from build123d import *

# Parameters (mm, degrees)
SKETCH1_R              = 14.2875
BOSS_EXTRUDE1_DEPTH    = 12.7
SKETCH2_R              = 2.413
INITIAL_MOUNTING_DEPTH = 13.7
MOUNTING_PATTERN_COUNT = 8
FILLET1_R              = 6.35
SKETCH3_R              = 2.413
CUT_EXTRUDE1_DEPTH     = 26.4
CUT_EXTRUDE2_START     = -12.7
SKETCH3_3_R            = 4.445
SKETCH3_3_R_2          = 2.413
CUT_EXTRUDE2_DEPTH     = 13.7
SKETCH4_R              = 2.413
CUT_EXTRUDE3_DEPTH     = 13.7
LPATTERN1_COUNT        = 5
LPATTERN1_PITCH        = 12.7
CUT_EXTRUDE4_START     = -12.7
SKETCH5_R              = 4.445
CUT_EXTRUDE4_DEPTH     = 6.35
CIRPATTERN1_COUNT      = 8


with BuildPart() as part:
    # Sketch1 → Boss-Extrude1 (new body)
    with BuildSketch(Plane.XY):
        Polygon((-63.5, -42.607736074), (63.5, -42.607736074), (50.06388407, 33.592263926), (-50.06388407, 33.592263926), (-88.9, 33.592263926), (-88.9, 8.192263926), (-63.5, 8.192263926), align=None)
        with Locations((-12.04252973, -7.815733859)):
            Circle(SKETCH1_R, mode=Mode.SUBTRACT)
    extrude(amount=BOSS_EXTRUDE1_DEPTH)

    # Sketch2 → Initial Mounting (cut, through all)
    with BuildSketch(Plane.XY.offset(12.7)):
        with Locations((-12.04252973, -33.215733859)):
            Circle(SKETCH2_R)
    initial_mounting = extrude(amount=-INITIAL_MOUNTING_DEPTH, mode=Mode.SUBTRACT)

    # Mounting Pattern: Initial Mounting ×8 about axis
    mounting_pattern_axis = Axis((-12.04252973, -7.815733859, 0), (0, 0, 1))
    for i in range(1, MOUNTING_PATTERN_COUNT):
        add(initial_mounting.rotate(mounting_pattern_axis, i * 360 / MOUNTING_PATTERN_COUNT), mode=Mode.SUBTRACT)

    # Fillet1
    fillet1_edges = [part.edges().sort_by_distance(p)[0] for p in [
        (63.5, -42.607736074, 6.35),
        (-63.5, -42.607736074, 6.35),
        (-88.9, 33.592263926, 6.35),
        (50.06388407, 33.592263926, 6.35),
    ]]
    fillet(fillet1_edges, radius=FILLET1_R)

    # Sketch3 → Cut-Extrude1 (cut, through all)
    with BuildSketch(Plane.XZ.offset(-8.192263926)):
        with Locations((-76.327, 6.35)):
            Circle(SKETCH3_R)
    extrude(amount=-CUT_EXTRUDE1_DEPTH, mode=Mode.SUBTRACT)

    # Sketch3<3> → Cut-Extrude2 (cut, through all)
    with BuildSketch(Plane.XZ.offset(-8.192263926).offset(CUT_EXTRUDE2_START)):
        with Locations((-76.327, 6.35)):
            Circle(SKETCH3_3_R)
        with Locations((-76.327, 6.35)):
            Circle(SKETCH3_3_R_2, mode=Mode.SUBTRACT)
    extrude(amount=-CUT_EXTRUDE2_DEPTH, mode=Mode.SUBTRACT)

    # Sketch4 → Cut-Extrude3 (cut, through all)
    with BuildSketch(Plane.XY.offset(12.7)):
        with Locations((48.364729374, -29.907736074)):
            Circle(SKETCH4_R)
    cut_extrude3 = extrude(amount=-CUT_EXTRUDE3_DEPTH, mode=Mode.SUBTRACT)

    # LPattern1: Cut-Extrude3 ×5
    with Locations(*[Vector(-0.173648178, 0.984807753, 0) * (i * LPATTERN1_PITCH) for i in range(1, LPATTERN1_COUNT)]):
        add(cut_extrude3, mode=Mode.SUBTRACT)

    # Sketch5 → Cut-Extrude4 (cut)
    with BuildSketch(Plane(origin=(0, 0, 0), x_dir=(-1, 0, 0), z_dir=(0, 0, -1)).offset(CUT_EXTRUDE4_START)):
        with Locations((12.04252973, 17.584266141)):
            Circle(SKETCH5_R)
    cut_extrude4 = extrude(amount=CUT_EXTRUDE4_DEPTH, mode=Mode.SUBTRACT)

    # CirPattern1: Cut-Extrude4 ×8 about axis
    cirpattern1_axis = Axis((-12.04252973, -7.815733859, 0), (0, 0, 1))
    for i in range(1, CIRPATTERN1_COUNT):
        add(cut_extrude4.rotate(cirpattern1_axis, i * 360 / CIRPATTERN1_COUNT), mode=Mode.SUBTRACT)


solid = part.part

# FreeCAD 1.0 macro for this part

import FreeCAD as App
import Part
import Sketcher
Q = App.Units.Quantity


def edges_at(feature, points):
    """Names of the edges that pass closest to the given points."""
    edges = feature.Shape.Edges
    near = lambda p: min(range(len(edges)), key=lambda i: edges[i].distToShape(Part.Vertex(*p))[0])
    return sorted({f"Edge{near(p) + 1}" for p in points})


def add_polygon(sketch, points):
    """Adds a closed chain of lines whose ends are joined by coincident constraints."""
    first, n = sketch.GeometryCount, len(points)
    for a, b in zip(points, points[1:] + points[:1]):
        sketch.addGeometry(Part.LineSegment(App.Vector(*a, 0), App.Vector(*b, 0)), False)
    for i in range(n):
        sketch.addConstraint(Sketcher.Constraint("Coincident", first + i, 2, first + (i + 1) % n, 1))

doc = App.newDocument("Part")
params = doc.addObject("Spreadsheet::Sheet", "Params")
for row, (alias, value) in enumerate([
    ("sketch1_width", "5 in"),
    ("sketch1_width2", "1 in"),
    ("sketch1_height", "2 in"),
    ("sketch1_diameter", "1.125 in"),
    ("pad1_length", "0.5 in"),
    ("sketch2_diameter", "0.19 in"),
    ("fillet_radius", "0.25 in"),
    ("sketch3_diameter", "0.19 in"),
    ("sketch4_diameter", "0.35 in"),
    ("sketch4_diameter2", "0.19 in"),
    ("sketch5_diameter", "0.19 in"),
    ("linearpattern_pitch", "0.5 in"),
    ("sketch6_diameter", "0.35 in"),
    ("pocket5_length", "0.25 in"),
], start=1):
    params.set(f"A{row}", alias)
    params.set(f"B{row}", "=" + value)
    params.setAlias(f"B{row}", alias)

body = doc.addObject("PartDesign::Body", "Body")

# Sketch on XY plane
sketch1 = doc.addObject("Sketcher::SketchObject", "Sketch")
body.addObject(sketch1)
sketch1.AttachmentSupport = (doc.XY_Plane, [""])
sketch1.MapMode = "FlatFace"
add_polygon(sketch1, [(-63.5, -42.607736), (63.5, -42.607736), (50.063884, 33.592264), (-88.9, 33.592264), (-88.9, 8.192264), (-63.5, 8.192264)])  # lines 0-5
sketch1.addGeometry(Part.Circle(App.Vector(-12.04253, -7.815734, 0), App.Vector(0, 0, 1), 14.2875), False)  # 6
sketch1.addConstraint(Sketcher.Constraint("Horizontal", 0))
sketch1.addConstraint(Sketcher.Constraint("Horizontal", 2))
sketch1.addConstraint(Sketcher.Constraint("Vertical", 3))
sketch1.addConstraint(Sketcher.Constraint("Horizontal", 4))
sketch1.addConstraint(Sketcher.Constraint("Vertical", 5))
sketch1.addConstraint(Sketcher.Constraint("Equal", 4, 3))
sketch1.addConstraint(Sketcher.Constraint("DistanceX", 0, 1, 0, 2, Q("5 in")))
sketch1.addConstraint(Sketcher.Constraint("DistanceX", 4, 1, 4, 2, Q("1 in")))
sketch1.addConstraint(Sketcher.Constraint("DistanceY", 5, 2, 5, 1, Q("2 in")))
sketch1.addConstraint(Sketcher.Constraint("Diameter", 6, Q("1.125 in")))
sketch1.addConstraint(Sketcher.Constraint("Angle", 1, Q("100 deg")))
sketch1.addConstraint(Sketcher.Constraint("DistanceX", -1, 1, 0, 2, Q("2.5 in")))
sketch1.addConstraint(Sketcher.Constraint("DistanceX", 6, 3, -1, 1, 12.04253))
sketch1.addConstraint(Sketcher.Constraint("DistanceY", 6, 3, -1, 1, 7.815734))
sketch1.addConstraint(Sketcher.Constraint("DistanceY", 0, 2, -1, 1, 42.607736))
sketch1.setExpression("Constraints[12]", "Params.sketch1_width")
sketch1.setExpression("Constraints[13]", "Params.sketch1_width2")
sketch1.setExpression("Constraints[14]", "Params.sketch1_height")
sketch1.setExpression("Constraints[15]", "Params.sketch1_diameter")
pad1 = doc.addObject("PartDesign::Pad", "Pad")
body.addObject(pad1)
pad1.Profile = sketch1
pad1.setExpression("Length", "Params.pad1_length")

# Sketch on XY plane
sketch2 = doc.addObject("Sketcher::SketchObject", "Sketch001")
body.addObject(sketch2)
sketch2.AttachmentSupport = (doc.XY_Plane, [""])
sketch2.MapMode = "FlatFace"
sketch2.AttachmentOffset = App.Placement(App.Vector(0, 0, 0.5 * 25.4), App.Rotation())
sketch2.addGeometry(Part.Circle(App.Vector(-12.04253, -33.215734, 0), App.Vector(0, 0, 1), 2.413), False)
sketch2.addConstraint(Sketcher.Constraint("Diameter", 0, Q("0.19 in")))
sketch2.addConstraint(Sketcher.Constraint("DistanceX", 0, 3, -1, 1, 12.04253))
sketch2.addConstraint(Sketcher.Constraint("DistanceY", 0, 3, -1, 1, 33.215734))
sketch2.setExpression("Constraints[0]", "Params.sketch2_diameter")
pocket1 = doc.addObject("PartDesign::Pocket", "Pocket")
body.addObject(pocket1)
pocket1.Profile = sketch2
pocket1.Type = "ThroughAll"
doc.recompute()

datumline = doc.addObject("PartDesign::Line", "DatumLine")
body.addObject(datumline)
datumline.Placement = App.Placement(App.Vector(-12.04253, -7.815734, 0), App.Rotation(App.Vector(0, 0, 1), App.Vector(0, 0, 1)))
polarpattern = doc.addObject("PartDesign::PolarPattern", "PolarPattern")
body.addObject(polarpattern)
polarpattern.Originals = [pocket1]
polarpattern.Axis = (datumline, [""])
polarpattern.Angle = 360
polarpattern.Occurrences = 8
body.Tip = polarpattern
doc.recompute()

fillet = doc.addObject("PartDesign::Fillet", "Fillet")
body.addObject(fillet)
fillet.Base = (polarpattern, edges_at(polarpattern, [
    (63.5, -42.608, 6.35),
    (-63.5, -42.608, 6.35),
    (-88.9, 33.592, 6.35),
    (50.064, 33.592, 6.35),
]))
fillet.setExpression("Radius", "Params.fillet_radius")

# Sketch on XZ plane
sketch3 = doc.addObject("Sketcher::SketchObject", "Sketch002")
body.addObject(sketch3)
sketch3.AttachmentSupport = (doc.XZ_Plane, [""])
sketch3.MapMode = "FlatFace"
sketch3.AttachmentOffset = App.Placement(App.Vector(0, 0, -8.192264), App.Rotation())
sketch3.addGeometry(Part.Circle(App.Vector(-76.327, 6.35, 0), App.Vector(0, 0, 1), 2.413), False)
sketch3.addConstraint(Sketcher.Constraint("Diameter", 0, Q("0.19 in")))
sketch3.addConstraint(Sketcher.Constraint("DistanceY", -1, 1, 0, 3, Q("0.25 in")))
sketch3.addConstraint(Sketcher.Constraint("DistanceX", 0, 3, -1, 1, Q("3.005 in")))
sketch3.setExpression("Constraints[0]", "Params.sketch3_diameter")
pocket2 = doc.addObject("PartDesign::Pocket", "Pocket001")
body.addObject(pocket2)
pocket2.Profile = sketch3
pocket2.Type = "ThroughAll"

# Sketch on XZ plane
sketch4 = doc.addObject("Sketcher::SketchObject", "Sketch003")
body.addObject(sketch4)
sketch4.AttachmentSupport = (doc.XZ_Plane, [""])
sketch4.MapMode = "FlatFace"
sketch4.AttachmentOffset = App.Placement(App.Vector(0, 0, -20.892264), App.Rotation())
sketch4.addGeometry(Part.Circle(App.Vector(-76.327, 6.35, 0), App.Vector(0, 0, 1), 4.445), False)
sketch4.addGeometry(Part.Circle(App.Vector(-76.327, 6.35, 0), App.Vector(0, 0, 1), 2.413), False)
sketch4.addConstraint(Sketcher.Constraint("Coincident", 1, 3, 0, 3))
sketch4.addConstraint(Sketcher.Constraint("Diameter", 0, Q("0.35 in")))
sketch4.addConstraint(Sketcher.Constraint("Diameter", 1, Q("0.19 in")))
sketch4.addConstraint(Sketcher.Constraint("DistanceY", -1, 1, 0, 3, Q("0.25 in")))
sketch4.addConstraint(Sketcher.Constraint("DistanceX", 0, 3, -1, 1, Q("3.005 in")))
sketch4.setExpression("Constraints[1]", "Params.sketch4_diameter")
sketch4.setExpression("Constraints[2]", "Params.sketch4_diameter2")
pocket3 = doc.addObject("PartDesign::Pocket", "Pocket002")
body.addObject(pocket3)
pocket3.Profile = sketch4
pocket3.Type = "ThroughAll"

# Sketch on XY plane
sketch5 = doc.addObject("Sketcher::SketchObject", "Sketch004")
body.addObject(sketch5)
sketch5.AttachmentSupport = (doc.XY_Plane, [""])
sketch5.MapMode = "FlatFace"
sketch5.AttachmentOffset = App.Placement(App.Vector(0, 0, 0.5 * 25.4), App.Rotation())
sketch5.addGeometry(Part.Circle(App.Vector(48.364729, -29.907736, 0), App.Vector(0, 0, 1), 2.413), False)
sketch5.addConstraint(Sketcher.Constraint("Diameter", 0, Q("0.19 in")))
sketch5.addConstraint(Sketcher.Constraint("DistanceX", -1, 1, 0, 3, 48.364729))
sketch5.addConstraint(Sketcher.Constraint("DistanceY", 0, 3, -1, 1, 29.907736))
sketch5.setExpression("Constraints[0]", "Params.sketch5_diameter")
pocket4 = doc.addObject("PartDesign::Pocket", "Pocket003")
body.addObject(pocket4)
pocket4.Profile = sketch5
pocket4.Type = "ThroughAll"
doc.recompute()

datumline2 = doc.addObject("PartDesign::Line", "DatumLine001")
body.addObject(datumline2)
datumline2.Placement = App.Placement(App.Vector(0, 0, 0), App.Rotation(App.Vector(0, 0, 1), App.Vector(-0.173648178, 0.984807753, 0)))
linearpattern = doc.addObject("PartDesign::LinearPattern", "LinearPattern")
body.addObject(linearpattern)
linearpattern.Originals = [pocket4]
linearpattern.Direction = (datumline2, [""])
linearpattern.Mode = "offset"
linearpattern.setExpression("Offset", "Params.linearpattern_pitch")
linearpattern.Occurrences = 5
body.Tip = linearpattern

# Sketch on XY plane
sketch6 = doc.addObject("Sketcher::SketchObject", "Sketch005")
body.addObject(sketch6)
sketch6.AttachmentSupport = (doc.XY_Plane, [""])
sketch6.MapMode = "FlatFace"
sketch6.AttachmentOffset = App.Placement(App.Vector(0, 0, 0.5 * 25.4), App.Rotation())
sketch6.addGeometry(Part.Circle(App.Vector(-12.04253, 17.584266, 0), App.Vector(0, 0, 1), 4.445), False)
sketch6.addConstraint(Sketcher.Constraint("Diameter", 0, Q("0.35 in")))
sketch6.addConstraint(Sketcher.Constraint("DistanceX", 0, 3, -1, 1, 12.04253))
sketch6.addConstraint(Sketcher.Constraint("DistanceY", -1, 1, 0, 3, 17.584266))
sketch6.setExpression("Constraints[0]", "Params.sketch6_diameter")
pocket5 = doc.addObject("PartDesign::Pocket", "Pocket004")
body.addObject(pocket5)
pocket5.Profile = sketch6
pocket5.setExpression("Length", "Params.pocket5_length")
doc.recompute()

datumline3 = doc.addObject("PartDesign::Line", "DatumLine002")
body.addObject(datumline3)
datumline3.Placement = App.Placement(App.Vector(-12.04253, -7.815734, 0), App.Rotation(App.Vector(0, 0, 1), App.Vector(0, 0, 1)))
polarpattern2 = doc.addObject("PartDesign::PolarPattern", "PolarPattern001")
body.addObject(polarpattern2)
polarpattern2.Originals = [pocket5]
polarpattern2.Axis = (datumline3, [""])
polarpattern2.Angle = 360
polarpattern2.Occurrences = 8
body.Tip = polarpattern2

doc.recompute()
